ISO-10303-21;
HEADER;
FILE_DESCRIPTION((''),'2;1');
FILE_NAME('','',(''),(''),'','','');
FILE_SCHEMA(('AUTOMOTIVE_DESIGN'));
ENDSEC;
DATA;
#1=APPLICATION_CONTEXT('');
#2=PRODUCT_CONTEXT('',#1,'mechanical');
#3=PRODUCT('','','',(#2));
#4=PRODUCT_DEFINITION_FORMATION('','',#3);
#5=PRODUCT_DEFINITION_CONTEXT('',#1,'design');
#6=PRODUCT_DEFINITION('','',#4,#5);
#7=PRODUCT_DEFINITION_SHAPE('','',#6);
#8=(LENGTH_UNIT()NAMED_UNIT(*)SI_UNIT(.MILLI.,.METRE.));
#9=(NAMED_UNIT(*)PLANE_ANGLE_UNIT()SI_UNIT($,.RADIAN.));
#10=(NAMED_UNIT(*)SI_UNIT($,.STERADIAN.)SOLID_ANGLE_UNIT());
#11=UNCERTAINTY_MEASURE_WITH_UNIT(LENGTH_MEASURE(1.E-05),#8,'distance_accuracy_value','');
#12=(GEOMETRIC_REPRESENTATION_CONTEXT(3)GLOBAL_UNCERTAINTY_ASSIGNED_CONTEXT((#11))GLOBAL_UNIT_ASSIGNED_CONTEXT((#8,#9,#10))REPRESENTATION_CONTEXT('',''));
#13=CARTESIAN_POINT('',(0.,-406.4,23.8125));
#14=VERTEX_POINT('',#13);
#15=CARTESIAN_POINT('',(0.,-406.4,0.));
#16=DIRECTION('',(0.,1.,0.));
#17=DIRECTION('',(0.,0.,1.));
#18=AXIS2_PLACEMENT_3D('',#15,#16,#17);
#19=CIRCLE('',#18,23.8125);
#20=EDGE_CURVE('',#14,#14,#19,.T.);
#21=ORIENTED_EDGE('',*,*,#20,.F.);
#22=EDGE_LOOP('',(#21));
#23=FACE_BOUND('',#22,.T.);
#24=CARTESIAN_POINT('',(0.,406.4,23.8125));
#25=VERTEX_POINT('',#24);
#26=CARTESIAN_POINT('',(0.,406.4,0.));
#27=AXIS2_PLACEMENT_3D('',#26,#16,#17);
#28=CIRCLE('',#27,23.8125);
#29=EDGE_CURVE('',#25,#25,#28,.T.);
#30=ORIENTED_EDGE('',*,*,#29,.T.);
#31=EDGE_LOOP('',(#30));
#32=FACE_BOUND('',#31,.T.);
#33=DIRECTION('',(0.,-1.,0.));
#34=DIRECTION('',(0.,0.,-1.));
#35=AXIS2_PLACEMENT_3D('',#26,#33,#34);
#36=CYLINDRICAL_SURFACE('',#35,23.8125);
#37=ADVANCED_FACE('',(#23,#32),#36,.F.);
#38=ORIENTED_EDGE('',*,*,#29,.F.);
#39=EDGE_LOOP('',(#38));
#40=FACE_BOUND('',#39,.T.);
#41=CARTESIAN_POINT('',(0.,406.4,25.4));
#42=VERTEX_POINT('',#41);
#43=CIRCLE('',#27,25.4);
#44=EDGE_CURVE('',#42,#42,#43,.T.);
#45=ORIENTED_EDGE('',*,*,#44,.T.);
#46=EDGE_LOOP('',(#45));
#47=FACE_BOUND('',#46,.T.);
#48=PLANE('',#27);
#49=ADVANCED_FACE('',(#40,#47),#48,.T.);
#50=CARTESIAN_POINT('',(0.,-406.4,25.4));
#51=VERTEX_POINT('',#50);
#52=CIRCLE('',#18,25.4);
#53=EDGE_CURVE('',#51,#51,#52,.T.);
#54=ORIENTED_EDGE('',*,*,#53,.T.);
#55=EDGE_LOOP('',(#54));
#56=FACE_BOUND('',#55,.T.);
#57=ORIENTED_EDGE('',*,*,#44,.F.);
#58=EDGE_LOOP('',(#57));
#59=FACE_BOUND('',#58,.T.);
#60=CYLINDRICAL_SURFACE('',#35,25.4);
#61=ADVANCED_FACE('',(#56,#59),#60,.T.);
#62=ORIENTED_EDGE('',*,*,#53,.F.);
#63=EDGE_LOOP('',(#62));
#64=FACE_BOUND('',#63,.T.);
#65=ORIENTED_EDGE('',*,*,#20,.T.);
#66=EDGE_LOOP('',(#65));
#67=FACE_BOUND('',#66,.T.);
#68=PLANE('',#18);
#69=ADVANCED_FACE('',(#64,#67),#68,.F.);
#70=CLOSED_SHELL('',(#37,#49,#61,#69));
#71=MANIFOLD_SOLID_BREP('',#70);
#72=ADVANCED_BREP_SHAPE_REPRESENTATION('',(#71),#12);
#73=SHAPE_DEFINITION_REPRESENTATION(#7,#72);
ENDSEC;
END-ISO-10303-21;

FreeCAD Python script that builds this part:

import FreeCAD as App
import Part
import Sketcher
Q = App.Units.Quantity


def faces_at(feature, points):
    """Names of the faces that lie closest to the given points."""
    faces = feature.Shape.Faces
    near = lambda p: min(range(len(faces)), key=lambda i: faces[i].distToShape(Part.Vertex(*p))[0])
    return sorted({f"Face{near(p) + 1}" for p in points})

doc = App.newDocument("Part")
params = doc.addObject("Spreadsheet::Sheet", "Params")
for row, (alias, value) in enumerate([
    ("sketch1_diameter", "2 in"),
    ("pad1_length", "32 in"),
    ("thickness_wall", "0.0625 in"),
], start=1):
    params.set(f"A{row}", alias)
    params.set(f"B{row}", "=" + value)
    params.setAlias(f"B{row}", alias)

body = doc.addObject("PartDesign::Body", "Body")

# Sketch on XZ plane
sketch1 = doc.addObject("Sketcher::SketchObject", "Sketch")
body.addObject(sketch1)
sketch1.AttachmentSupport = (doc.XZ_Plane, [""])
sketch1.MapMode = "FlatFace"
sketch1.addGeometry(Part.Circle(App.Vector(0, 0, 0), App.Vector(0, 0, 1), 25.4), False)
sketch1.addConstraint([
    Sketcher.Constraint("Coincident", 0, 3, -1, 1),
    Sketcher.Constraint("Diameter", 0, Q("2 in")),
])
sketch1.setExpression("Constraints[1]", "Params.sketch1_diameter")
pad1 = doc.addObject("PartDesign::Pad", "Pad")
body.addObject(pad1)
pad1.Profile = sketch1
pad1.setExpression("Length", "Params.pad1_length")
pad1.Midplane = True
doc.recompute()

thickness = doc.addObject("PartDesign::Thickness", "Thickness")
body.addObject(thickness)
thickness.Base = (pad1, faces_at(pad1, [(0, 406.4, 0), (0, -406.4, 0)]))
thickness.setExpression("Value", "Params.thickness_wall")
thickness.Reversed = True
thickness.Join = "Intersection"

doc.recompute()
